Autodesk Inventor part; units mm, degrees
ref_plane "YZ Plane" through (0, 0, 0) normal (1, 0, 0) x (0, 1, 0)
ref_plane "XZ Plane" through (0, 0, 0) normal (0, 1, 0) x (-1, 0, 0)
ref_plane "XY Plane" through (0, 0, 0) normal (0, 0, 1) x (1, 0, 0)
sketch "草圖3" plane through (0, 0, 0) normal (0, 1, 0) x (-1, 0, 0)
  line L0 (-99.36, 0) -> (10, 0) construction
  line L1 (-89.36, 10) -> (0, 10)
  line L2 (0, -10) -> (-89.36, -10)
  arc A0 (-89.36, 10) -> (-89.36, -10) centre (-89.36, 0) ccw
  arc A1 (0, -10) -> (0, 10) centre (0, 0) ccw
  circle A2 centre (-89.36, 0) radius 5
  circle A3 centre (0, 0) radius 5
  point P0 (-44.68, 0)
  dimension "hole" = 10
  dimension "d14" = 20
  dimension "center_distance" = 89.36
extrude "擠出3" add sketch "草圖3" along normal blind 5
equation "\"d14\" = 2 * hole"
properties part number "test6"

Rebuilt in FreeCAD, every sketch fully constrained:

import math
import FreeCAD as App
import Part
import Sketcher
from FreeCAD import Vector
Q = App.Units.Quantity

doc = App.newDocument("Part")
body = doc.addObject("PartDesign::Body", "Body")

# Sketch on XZ plane
sketch1 = body.newObject("Sketcher::SketchObject", "Sketch")
sketch1.AttachmentSupport = (doc.getObject("XZ_Plane"), [""])
sketch1.MapMode = "FlatFace"
sketch1.addGeometry([
    Part.LineSegment(Vector(0, 10, 0), Vector(89, 10, 0)),  # 0
    Part.ArcOfCircle(Part.Circle(Vector(89, 0, 0), Vector(0, 0, 1), 10), math.radians(-90), math.radians(90)),  # 1
    Part.LineSegment(Vector(89, -10, 0), Vector(0, -10, 0)),  # 2
    Part.ArcOfCircle(Part.Circle(Vector(0, 0, 0), Vector(0, 0, 1), 10), math.radians(90), math.radians(270)),  # 3
    Part.Circle(Vector(89, 0, 0), Vector(0, 0, 1), 5),  # 4
    Part.Circle(Vector(0, 0, 0), Vector(0, 0, 1), 5),  # 5
], False)
sketch1.addConstraint([
    Sketcher.Constraint("Tangent", 0, 2, 1, 2),
    Sketcher.Constraint("Tangent", 1, 1, 2, 1),
    Sketcher.Constraint("Tangent", 2, 2, 3, 2),
    Sketcher.Constraint("Tangent", 3, 1, 0, 1),
    Sketcher.Constraint("Horizontal", 0),
    Sketcher.Constraint("Horizontal", 2),
    Sketcher.Constraint("Coincident", 3, 3, -1, 1),
    Sketcher.Constraint("Coincident", 5, 3, -1, 1),
    Sketcher.Constraint("Coincident", 4, 3, 1, 3),
    Sketcher.Constraint("Equal", 4, 5),
    Sketcher.Constraint("Diameter", 4, Q("10 mm")),
    Sketcher.Constraint("Radius", 1, Q("10 mm")),
    Sketcher.Constraint("DistanceX", 0, 1, 0, 2, Q("89.36 mm")),
])
pad1 = body.newObject("PartDesign::Pad", "Pad")
pad1.Profile = sketch1
pad1.Length = 5
pad1.Reversed = True

doc.recompute()
